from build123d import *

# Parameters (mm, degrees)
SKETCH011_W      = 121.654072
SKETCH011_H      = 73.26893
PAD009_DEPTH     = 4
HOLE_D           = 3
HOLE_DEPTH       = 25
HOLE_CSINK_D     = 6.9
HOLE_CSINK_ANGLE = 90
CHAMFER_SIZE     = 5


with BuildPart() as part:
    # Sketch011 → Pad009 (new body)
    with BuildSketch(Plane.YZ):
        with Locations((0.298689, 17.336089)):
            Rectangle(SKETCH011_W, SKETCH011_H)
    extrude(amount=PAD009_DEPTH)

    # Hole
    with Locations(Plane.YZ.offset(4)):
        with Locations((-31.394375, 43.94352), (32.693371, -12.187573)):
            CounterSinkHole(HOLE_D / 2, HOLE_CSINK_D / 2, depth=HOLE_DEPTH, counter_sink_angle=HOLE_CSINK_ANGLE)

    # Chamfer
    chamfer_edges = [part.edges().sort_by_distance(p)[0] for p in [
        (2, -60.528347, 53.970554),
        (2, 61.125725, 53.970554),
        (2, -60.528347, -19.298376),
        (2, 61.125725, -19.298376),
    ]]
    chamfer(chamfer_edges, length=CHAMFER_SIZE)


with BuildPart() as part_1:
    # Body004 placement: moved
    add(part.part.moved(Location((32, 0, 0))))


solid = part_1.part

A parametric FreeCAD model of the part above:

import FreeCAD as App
import Part
import Sketcher

V = App.Vector


def edges_at(feature, points):
    """Names of the edges that pass closest to the given points."""
    edges = feature.Shape.Edges
    near = lambda p: min(range(len(edges)), key=lambda i: edges[i].distToShape(Part.Vertex(*p))[0])
    return sorted({f"Edge{near(p) + 1}" for p in points})

doc = App.newDocument("Part")
body = doc.addObject("PartDesign::Body", "Body")

sketch1 = body.newObject("Sketcher::SketchObject", "Sketch")
sketch1.AttachmentSupport = (doc.getObject("YZ_Plane"), [""])
sketch1.MapMode = "FlatFace"
sketch1.addGeometry([
    Part.LineSegment(V(-61, 54, 0), V(-61, -19, 0)),
    Part.LineSegment(V(-61, -19, 0), V(61, -19, 0)),
    Part.LineSegment(V(61, -19, 0), V(61, 54, 0)),
    Part.LineSegment(V(61, 54, 0), V(-61, 54, 0)),
], False)
sketch1.addConstraint([
    Sketcher.Constraint("Coincident", 0, 2, 1, 1),
    Sketcher.Constraint("Coincident", 1, 2, 2, 1),
    Sketcher.Constraint("Coincident", 2, 2, 3, 1),
    Sketcher.Constraint("Coincident", 3, 2, 0, 1),
    Sketcher.Constraint("Vertical", 0),
    Sketcher.Constraint("Horizontal", 1),
    Sketcher.Constraint("Vertical", 2),
    Sketcher.Constraint("Horizontal", 3),
    Sketcher.Constraint("DistanceX", 1, 1, 1, 2, 121.654072),
    Sketcher.Constraint("DistanceY", 0, 2, 0, 1, 73.26893),
    Sketcher.Constraint("DistanceX", 0, 2, -1, 1, 60.528347),
    Sketcher.Constraint("DistanceY", 0, 2, -1, 1, 19.298376),
])
pad1 = body.newObject("PartDesign::Pad", "Pad")
pad1.Profile = sketch1
pad1.Length = 4

sketch2 = body.newObject("Sketcher::SketchObject", "Sketch001")
sketch2.AttachmentSupport = (doc.getObject("YZ_Plane"), [""])
sketch2.MapMode = "FlatFace"
sketch2.AttachmentOffset = App.Placement(V(0, 0, 4), App.Rotation())
sketch2.addGeometry([
    Part.Circle(V(-31.4, 43.9, 0), V(0, 0, 1), 1.5),
    Part.Circle(V(32.7, -12.2, 0), V(0, 0, 1), 1.5),
], False)
sketch2.addConstraint([
    Sketcher.Constraint("Equal", 0, 1),
    Sketcher.Constraint("Diameter", 0, 3.0),
    Sketcher.Constraint("DistanceY", -1, 1, 0, 3, 43.94352),
    Sketcher.Constraint("DistanceX", -1, 1, 1, 3, 32.693371),
    Sketcher.Constraint("DistanceX", 0, 3, -1, 1, 31.394375),
    Sketcher.Constraint("DistanceY", 1, 3, -1, 1, 12.187573),
])
doc.recompute()
hole = body.newObject("PartDesign::Hole", "Hole")
hole.Profile = sketch2
hole.ThreadType = "None"
hole.Diameter = 3
hole.DepthType = "Dimension"
hole.Depth = 25
hole.DrillPoint = "Flat"
hole.HoleCutType = "Countersink"
hole.HoleCutDiameter = 6.9
hole.HoleCutCountersinkAngle = 90
doc.recompute()

chamfer = body.newObject("PartDesign::Chamfer", "Chamfer")
chamfer.Base = (hole, edges_at(hole, [
    (2, -60.528, 53.971),
    (2, 61.126, 53.971),
    (2, -60.528, -19.298),
    (2, 61.126, -19.298),
]))
chamfer.Size = 5
body2 = doc.addObject("PartDesign::Body", "Body001")
doc.recompute()

body.Placement = App.Placement(V(32, 0, 0), App.Rotation(V(0, 0, 1), 0))
boolean = body2.newObject("PartDesign::Boolean", "Boolean")
boolean.Type = "Fuse"
boolean.addObjects([body])

doc.recompute()
